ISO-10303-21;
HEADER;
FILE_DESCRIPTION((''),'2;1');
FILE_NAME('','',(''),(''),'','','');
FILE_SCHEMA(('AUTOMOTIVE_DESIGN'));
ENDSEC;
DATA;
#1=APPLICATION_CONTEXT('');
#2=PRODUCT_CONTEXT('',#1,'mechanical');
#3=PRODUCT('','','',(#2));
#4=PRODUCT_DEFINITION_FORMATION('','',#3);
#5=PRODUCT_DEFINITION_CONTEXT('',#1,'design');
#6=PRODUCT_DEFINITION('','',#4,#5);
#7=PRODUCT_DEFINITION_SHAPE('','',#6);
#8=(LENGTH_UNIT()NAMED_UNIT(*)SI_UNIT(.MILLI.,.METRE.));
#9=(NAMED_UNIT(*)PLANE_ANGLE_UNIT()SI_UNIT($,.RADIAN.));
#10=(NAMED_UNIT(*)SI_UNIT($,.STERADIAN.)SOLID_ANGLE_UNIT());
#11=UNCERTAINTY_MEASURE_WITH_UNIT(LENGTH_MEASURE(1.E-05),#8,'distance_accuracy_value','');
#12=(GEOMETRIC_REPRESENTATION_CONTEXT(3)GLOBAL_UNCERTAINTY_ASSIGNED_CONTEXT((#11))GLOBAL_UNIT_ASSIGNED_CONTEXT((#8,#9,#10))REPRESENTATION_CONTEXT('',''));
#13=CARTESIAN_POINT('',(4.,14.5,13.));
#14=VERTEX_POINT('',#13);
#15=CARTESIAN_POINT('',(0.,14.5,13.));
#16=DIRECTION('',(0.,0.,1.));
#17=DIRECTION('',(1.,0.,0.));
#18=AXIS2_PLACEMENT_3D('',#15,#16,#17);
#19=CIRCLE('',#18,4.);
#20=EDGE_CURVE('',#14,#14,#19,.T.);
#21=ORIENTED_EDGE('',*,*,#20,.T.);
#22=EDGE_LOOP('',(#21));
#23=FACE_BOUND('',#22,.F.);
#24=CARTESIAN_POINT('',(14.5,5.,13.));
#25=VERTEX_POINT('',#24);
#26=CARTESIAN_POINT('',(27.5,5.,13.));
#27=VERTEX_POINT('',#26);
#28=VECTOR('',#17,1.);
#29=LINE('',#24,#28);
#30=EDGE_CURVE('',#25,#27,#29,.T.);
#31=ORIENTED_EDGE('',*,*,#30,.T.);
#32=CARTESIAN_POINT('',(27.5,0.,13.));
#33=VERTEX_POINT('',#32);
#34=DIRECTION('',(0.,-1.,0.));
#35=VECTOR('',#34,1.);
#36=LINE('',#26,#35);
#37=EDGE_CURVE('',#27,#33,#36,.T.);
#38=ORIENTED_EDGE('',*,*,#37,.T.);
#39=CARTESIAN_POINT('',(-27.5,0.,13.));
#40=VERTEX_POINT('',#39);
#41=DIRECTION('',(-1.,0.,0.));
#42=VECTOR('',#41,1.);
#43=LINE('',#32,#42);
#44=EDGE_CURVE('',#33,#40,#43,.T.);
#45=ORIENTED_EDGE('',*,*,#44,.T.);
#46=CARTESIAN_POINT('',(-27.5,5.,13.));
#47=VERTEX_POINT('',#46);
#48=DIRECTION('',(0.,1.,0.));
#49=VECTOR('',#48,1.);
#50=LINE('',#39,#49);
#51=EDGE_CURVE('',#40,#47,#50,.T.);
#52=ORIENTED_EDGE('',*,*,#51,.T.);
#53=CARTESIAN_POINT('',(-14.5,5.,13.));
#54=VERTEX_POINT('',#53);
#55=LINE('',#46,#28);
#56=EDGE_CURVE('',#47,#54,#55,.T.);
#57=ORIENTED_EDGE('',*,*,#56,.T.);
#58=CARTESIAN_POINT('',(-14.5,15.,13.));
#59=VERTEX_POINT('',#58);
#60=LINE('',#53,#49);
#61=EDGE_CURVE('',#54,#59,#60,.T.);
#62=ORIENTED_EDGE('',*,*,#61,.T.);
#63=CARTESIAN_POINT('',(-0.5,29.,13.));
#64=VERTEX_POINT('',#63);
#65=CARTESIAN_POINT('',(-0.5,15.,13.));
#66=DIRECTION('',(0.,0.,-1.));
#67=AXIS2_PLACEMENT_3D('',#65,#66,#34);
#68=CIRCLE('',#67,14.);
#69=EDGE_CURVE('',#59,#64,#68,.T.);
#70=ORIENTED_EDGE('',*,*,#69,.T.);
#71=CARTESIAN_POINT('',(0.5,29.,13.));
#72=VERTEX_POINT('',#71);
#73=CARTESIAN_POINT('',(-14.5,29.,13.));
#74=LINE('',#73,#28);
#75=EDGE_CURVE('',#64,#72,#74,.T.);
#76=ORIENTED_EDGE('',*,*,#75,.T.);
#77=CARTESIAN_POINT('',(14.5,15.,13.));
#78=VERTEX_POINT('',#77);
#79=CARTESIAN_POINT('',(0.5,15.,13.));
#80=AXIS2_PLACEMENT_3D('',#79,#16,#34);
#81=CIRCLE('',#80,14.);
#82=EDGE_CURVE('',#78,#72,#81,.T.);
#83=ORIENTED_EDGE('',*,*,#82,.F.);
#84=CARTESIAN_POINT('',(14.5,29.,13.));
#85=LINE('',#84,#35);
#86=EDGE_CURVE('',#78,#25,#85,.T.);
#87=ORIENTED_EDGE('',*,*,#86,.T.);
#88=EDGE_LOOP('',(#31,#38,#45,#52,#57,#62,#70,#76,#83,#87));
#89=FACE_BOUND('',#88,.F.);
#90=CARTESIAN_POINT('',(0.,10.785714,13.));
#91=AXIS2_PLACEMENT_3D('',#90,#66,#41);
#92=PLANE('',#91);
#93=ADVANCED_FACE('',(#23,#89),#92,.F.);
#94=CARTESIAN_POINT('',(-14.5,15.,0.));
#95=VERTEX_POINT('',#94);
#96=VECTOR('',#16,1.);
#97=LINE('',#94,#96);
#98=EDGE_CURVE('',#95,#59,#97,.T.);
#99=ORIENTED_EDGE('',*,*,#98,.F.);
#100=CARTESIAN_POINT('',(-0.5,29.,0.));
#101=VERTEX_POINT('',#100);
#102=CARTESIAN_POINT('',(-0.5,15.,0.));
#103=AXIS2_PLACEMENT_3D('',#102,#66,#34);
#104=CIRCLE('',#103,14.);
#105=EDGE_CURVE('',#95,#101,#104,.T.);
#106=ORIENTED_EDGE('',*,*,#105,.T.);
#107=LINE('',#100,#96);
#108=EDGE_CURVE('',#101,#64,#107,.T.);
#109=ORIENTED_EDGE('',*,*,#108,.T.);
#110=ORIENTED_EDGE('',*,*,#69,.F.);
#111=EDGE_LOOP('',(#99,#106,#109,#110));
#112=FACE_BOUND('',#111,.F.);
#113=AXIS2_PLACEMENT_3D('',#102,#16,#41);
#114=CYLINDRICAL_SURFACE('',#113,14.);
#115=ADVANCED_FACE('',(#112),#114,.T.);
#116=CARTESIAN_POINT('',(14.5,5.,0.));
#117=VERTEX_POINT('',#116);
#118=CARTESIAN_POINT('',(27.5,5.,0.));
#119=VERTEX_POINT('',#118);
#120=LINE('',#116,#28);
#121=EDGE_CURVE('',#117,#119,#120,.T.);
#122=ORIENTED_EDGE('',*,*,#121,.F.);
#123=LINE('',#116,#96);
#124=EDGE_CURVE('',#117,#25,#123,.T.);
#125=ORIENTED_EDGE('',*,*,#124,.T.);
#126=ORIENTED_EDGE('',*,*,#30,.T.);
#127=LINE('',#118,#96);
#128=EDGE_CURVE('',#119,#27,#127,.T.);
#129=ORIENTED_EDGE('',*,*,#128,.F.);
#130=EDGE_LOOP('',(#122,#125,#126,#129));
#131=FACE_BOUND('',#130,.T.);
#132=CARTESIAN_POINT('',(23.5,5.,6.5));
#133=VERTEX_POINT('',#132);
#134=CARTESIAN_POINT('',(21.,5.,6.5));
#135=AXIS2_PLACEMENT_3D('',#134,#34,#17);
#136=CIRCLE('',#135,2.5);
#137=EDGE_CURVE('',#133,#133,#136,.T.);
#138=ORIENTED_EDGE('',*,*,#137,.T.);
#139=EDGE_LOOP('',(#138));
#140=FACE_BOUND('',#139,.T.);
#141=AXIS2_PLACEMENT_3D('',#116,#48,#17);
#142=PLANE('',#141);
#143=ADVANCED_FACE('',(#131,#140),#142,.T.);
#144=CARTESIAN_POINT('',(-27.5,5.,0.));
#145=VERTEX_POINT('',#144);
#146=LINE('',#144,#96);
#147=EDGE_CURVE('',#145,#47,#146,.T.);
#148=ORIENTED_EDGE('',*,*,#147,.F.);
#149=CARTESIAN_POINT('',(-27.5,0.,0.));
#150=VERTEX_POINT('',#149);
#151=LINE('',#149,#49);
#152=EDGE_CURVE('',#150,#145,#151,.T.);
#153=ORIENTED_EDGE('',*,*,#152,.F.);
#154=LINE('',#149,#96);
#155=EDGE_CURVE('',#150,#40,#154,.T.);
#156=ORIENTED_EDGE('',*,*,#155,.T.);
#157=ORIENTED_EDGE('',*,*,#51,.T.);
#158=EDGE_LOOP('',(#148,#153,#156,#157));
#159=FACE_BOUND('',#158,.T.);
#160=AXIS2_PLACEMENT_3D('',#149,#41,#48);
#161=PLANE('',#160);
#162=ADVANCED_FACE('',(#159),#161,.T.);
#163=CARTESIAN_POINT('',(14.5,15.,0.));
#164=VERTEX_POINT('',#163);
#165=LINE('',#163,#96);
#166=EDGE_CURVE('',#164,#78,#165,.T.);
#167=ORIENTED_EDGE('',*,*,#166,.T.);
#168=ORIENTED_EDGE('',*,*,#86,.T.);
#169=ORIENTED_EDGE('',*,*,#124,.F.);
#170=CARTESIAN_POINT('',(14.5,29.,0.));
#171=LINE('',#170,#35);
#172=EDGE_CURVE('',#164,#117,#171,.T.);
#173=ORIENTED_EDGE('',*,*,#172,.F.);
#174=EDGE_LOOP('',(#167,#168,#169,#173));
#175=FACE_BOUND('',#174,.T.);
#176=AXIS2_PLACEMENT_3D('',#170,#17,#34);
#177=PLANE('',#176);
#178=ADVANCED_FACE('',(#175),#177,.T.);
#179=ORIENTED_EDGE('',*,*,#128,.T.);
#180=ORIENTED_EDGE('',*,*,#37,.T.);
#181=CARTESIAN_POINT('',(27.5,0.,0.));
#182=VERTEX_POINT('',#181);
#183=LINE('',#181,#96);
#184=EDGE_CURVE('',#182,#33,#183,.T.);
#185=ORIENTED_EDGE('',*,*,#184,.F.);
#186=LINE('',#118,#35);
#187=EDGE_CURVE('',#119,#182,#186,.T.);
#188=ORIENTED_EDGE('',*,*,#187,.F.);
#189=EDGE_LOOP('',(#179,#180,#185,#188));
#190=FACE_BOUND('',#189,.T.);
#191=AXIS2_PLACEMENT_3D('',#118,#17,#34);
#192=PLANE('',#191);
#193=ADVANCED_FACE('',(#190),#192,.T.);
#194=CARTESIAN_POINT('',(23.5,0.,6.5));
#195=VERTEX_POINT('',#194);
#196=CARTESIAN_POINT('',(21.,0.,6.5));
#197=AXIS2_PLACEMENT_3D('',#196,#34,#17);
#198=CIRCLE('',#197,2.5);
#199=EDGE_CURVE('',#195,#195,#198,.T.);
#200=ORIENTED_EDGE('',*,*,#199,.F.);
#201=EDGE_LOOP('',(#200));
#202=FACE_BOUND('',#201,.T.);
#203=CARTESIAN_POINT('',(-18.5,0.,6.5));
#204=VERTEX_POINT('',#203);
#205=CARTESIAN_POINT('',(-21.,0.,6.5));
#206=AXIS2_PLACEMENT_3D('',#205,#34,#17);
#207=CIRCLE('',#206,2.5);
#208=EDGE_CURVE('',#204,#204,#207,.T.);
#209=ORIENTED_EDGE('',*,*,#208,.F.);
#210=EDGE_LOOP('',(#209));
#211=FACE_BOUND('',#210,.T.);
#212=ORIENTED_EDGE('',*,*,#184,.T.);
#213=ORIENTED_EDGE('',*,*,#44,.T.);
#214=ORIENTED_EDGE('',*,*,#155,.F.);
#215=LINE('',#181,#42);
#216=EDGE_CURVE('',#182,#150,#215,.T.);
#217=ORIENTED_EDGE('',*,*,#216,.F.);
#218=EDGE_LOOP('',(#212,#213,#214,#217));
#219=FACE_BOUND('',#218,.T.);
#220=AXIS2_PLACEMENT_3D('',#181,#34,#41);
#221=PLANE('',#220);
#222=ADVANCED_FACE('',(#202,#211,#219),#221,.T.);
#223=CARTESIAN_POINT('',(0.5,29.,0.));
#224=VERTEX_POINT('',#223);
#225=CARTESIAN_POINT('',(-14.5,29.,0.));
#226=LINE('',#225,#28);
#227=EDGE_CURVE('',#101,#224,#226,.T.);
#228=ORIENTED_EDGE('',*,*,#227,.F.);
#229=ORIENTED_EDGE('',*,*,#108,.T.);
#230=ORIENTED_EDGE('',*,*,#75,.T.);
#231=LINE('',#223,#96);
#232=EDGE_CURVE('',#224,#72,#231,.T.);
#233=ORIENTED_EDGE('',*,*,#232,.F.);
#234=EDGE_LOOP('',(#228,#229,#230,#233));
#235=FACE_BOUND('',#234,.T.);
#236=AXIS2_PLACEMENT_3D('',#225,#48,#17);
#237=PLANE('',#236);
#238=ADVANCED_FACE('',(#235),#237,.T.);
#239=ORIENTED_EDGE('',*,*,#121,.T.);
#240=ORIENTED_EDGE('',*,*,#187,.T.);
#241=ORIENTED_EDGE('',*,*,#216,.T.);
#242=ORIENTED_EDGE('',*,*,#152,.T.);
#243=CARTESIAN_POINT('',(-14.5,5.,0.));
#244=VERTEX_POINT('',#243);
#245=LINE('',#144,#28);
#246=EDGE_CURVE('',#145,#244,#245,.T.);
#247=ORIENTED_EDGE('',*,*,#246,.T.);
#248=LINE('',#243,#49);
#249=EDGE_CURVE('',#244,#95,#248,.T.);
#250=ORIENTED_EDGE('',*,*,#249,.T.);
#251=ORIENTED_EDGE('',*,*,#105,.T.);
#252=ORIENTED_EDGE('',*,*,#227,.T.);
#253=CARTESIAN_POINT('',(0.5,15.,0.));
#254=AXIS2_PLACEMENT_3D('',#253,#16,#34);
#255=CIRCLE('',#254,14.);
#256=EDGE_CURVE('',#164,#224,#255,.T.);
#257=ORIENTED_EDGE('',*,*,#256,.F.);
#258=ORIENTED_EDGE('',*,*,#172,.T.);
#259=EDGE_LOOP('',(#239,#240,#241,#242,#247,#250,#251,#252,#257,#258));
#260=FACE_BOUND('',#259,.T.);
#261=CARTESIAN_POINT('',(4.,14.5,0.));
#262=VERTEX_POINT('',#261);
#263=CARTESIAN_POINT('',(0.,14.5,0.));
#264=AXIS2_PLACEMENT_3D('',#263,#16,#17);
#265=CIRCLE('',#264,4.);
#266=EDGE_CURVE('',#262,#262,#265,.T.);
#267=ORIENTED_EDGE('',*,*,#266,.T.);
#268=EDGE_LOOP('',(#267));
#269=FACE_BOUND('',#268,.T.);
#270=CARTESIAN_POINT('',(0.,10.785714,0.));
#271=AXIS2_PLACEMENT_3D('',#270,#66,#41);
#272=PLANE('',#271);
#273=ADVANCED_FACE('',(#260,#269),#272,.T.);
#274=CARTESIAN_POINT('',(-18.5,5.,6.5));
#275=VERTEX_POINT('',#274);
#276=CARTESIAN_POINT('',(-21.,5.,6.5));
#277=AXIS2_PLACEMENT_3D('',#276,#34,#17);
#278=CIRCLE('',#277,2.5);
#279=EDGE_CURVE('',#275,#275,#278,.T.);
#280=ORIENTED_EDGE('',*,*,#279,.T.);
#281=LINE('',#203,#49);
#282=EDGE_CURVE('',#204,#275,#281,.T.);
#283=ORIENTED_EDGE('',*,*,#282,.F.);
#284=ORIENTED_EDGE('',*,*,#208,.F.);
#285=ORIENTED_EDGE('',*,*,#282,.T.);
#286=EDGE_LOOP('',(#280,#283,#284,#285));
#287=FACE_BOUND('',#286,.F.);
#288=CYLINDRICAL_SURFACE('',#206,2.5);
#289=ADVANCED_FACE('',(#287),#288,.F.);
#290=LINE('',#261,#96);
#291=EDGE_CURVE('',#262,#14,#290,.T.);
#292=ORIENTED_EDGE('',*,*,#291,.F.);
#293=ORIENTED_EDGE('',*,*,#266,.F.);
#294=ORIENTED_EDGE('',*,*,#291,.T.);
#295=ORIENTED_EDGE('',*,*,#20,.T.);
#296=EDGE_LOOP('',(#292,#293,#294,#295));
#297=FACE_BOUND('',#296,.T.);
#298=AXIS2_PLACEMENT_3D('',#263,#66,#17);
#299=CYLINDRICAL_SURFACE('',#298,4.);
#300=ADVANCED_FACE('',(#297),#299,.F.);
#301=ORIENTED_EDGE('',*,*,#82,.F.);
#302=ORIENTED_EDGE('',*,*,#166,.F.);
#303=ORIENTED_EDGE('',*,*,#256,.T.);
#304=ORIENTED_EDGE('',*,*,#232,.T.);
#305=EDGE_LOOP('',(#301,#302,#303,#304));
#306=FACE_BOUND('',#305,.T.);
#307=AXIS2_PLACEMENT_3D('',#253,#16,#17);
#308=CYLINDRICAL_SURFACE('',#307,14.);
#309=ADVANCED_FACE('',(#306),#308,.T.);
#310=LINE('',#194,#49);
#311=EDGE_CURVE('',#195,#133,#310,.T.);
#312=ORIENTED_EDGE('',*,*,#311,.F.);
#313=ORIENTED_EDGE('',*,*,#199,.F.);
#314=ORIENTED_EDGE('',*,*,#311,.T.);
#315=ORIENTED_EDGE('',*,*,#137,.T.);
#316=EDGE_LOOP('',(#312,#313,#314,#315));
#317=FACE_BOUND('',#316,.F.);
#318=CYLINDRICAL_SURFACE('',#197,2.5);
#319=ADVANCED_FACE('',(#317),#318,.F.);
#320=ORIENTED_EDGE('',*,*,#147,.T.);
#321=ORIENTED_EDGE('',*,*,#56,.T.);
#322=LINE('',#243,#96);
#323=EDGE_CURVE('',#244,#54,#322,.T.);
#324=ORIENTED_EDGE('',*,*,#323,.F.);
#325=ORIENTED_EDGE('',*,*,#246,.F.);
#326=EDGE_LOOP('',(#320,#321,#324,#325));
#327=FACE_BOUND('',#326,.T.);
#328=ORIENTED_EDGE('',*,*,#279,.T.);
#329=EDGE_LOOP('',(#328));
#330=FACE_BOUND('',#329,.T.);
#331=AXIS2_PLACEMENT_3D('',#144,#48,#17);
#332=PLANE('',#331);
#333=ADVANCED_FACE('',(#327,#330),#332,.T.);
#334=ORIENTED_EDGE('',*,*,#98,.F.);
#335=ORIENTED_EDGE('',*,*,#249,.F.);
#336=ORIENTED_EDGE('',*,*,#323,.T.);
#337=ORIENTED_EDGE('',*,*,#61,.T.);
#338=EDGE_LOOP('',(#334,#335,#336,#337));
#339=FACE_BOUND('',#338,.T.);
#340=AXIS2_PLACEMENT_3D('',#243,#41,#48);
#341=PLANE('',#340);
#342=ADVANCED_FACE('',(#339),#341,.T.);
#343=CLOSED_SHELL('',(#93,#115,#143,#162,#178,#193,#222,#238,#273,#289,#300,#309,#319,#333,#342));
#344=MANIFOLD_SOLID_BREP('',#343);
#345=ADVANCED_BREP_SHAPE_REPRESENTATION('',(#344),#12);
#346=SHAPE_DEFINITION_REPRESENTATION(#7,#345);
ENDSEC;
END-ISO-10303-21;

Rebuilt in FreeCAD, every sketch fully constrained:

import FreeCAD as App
import Part
import Sketcher
from FreeCAD import Vector
Q = App.Units.Quantity


def edges_at(feature, points):
    """Names of the edges that pass closest to the given points."""
    edges = feature.Shape.Edges
    near = lambda p: min(range(len(edges)), key=lambda i: edges[i].distToShape(Part.Vertex(*p))[0])
    return sorted({f"Edge{near(p) + 1}" for p in points})


def add_polygon(sketch, points):
    """Adds a closed chain of lines whose ends are joined by coincident constraints."""
    first, n = sketch.GeometryCount, len(points)
    for a, b in zip(points, points[1:] + points[:1]):
        sketch.addGeometry(Part.LineSegment(App.Vector(*a, 0), App.Vector(*b, 0)), False)
    for i in range(n):
        sketch.addConstraint(Sketcher.Constraint("Coincident", first + i, 2, first + (i + 1) % n, 1))

doc = App.newDocument("Part")
body = doc.addObject("PartDesign::Body", "Body")

# Sketch on XY plane
sketch1 = body.newObject("Sketcher::SketchObject", "Sketch")
sketch1.AttachmentSupport = (doc.getObject("XY_Plane"), [""])
sketch1.MapMode = "FlatFace"
add_polygon(sketch1, [(-27.5, 0), (27.5, 0), (27.5, 5), (14.5, 5), (14.5, 29), (-14.5, 29), (-14.5, 5), (-27.5, 5)])  # lines 0-7
sketch1.addGeometry(Part.Circle(Vector(0, 14.5, 0), Vector(0, 0, 1), 4), False)  # 8
sketch1.addConstraint([
    Sketcher.Constraint("Horizontal", 0),
    Sketcher.Constraint("Vertical", 1),
    Sketcher.Constraint("Horizontal", 2),
    Sketcher.Constraint("Vertical", 3),
    Sketcher.Constraint("Horizontal", 4),
    Sketcher.Constraint("Vertical", 5),
    Sketcher.Constraint("Horizontal", 6),
    Sketcher.Constraint("Vertical", 7),
    Sketcher.Constraint("Symmetric", 0, 2, 7, 2, -1, 1),
    Sketcher.Constraint("Symmetric", 2, 2, 5, 2, -2),
    Sketcher.Constraint("PointOnObject", 8, 3, -2),
    Sketcher.Constraint("Diameter", 8, Q("8 mm")),
    Sketcher.Constraint("DistanceX", 0, 1, 0, 2, Q("55 mm")),
    Sketcher.Constraint("DistanceX", 2, 2, 2, 1, Q("13 mm")),
    Sketcher.Constraint("DistanceY", 1, 1, 1, 2, Q("5 mm")),
    Sketcher.Constraint("DistanceY", 3, 1, 3, 2, Q("24 mm")),
    Sketcher.Constraint("DistanceY", -1, 1, 8, 3, Q("14.5 mm")),
])
pad1 = body.newObject("PartDesign::Pad", "Pad")
pad1.Profile = sketch1
pad1.Length = 13

# Sketch on XZ plane
sketch2 = body.newObject("Sketcher::SketchObject", "Sketch001")
sketch2.AttachmentSupport = (doc.getObject("XZ_Plane"), [""])
sketch2.MapMode = "FlatFace"
sketch2.addGeometry([
    Part.Circle(Vector(-21, 6.5, 0), Vector(0, 0, 1), 2.5),
    Part.Circle(Vector(21, 6.5, 0), Vector(0, 0, 1), 2.5),
], False)
sketch2.addConstraint([
    Sketcher.Constraint("Equal", 0, 1),
    Sketcher.Constraint("Symmetric", 0, 3, 1, 3, -2),
    Sketcher.Constraint("Diameter", 0, Q("5 mm")),
    Sketcher.Constraint("DistanceX", 0, 3, -1, 1, Q("21 mm")),
    Sketcher.Constraint("DistanceY", -1, 1, 0, 3, Q("6.5 mm")),
])
pocket1 = body.newObject("PartDesign::Pocket", "Pocket")
pocket1.Profile = sketch2
pocket1.Length = 5
doc.recompute()

fillet = body.newObject("PartDesign::Fillet", "Fillet")
fillet.Base = (pocket1, edges_at(pocket1, [(-14.5, 29, 6.5), (14.5, 29, 6.5)]))
fillet.Radius = 14

doc.recompute()
